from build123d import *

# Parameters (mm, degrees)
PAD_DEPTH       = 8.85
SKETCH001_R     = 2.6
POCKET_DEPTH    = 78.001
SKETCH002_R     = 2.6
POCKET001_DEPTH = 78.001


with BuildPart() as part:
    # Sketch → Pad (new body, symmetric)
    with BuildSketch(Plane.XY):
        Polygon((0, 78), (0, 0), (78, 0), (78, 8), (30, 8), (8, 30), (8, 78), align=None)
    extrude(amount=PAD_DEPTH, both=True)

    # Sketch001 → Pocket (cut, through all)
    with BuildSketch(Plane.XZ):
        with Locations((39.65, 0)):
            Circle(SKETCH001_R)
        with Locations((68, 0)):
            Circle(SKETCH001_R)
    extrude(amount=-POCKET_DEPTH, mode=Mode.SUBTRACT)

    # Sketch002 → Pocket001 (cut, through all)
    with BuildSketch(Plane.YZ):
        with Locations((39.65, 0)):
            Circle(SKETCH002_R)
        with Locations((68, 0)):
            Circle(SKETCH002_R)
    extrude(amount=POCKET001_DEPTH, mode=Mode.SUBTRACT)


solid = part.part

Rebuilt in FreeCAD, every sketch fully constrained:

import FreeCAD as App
import Part
import Sketcher
Q = App.Units.Quantity

doc = App.newDocument("Part")
params = doc.addObject("Spreadsheet::Sheet", "Params")
for row, (alias, value) in enumerate([
    ("sketch1_width", "78 mm"),
    ("sketch1_width2", "48 mm"),
    ("sketch1_width3", "8 mm"),
    ("pad1_length", "17.7 mm"),
    ("sketch2_diameter", "5.2 mm"),
    ("sketch3_diameter", "5.2 mm"),
], start=1):
    params.set(f"A{row}", alias)
    params.set(f"B{row}", "=" + value)
    params.setAlias(f"B{row}", alias)

body = doc.addObject("PartDesign::Body", "Body")

# Sketch on XY plane
sketch1 = doc.addObject("Sketcher::SketchObject", "Sketch")
body.addObject(sketch1)
sketch1.AttachmentSupport = (doc.XY_Plane, [""])
sketch1.MapMode = "FlatFace"
sketch1.addGeometry([
    Part.LineSegment(App.Vector(0, 78, 0), App.Vector(0, 0, 0)),  # 0
    Part.LineSegment(App.Vector(0, 0, 0), App.Vector(78, 0, 0)),  # 1
    Part.LineSegment(App.Vector(78, 0, 0), App.Vector(78, 8, 0)),  # 2
    Part.LineSegment(App.Vector(78, 8, 0), App.Vector(30, 8, 0)),  # 3
    Part.LineSegment(App.Vector(30, 8, 0), App.Vector(8, 30, 0)),  # 4
    Part.LineSegment(App.Vector(8, 30, 0), App.Vector(8, 78, 0)),  # 5
    Part.LineSegment(App.Vector(8, 78, 0), App.Vector(0, 78, 0)),  # 6
], False)
sketch1.addConstraint([
    Sketcher.Constraint("Coincident", 0, 2, 1, 1),
    Sketcher.Constraint("Coincident", 1, 2, 2, 1),
    Sketcher.Constraint("Coincident", 2, 2, 3, 1),
    Sketcher.Constraint("Coincident", 3, 2, 4, 1),
    Sketcher.Constraint("Coincident", 4, 2, 5, 1),
    Sketcher.Constraint("Coincident", 5, 2, 6, 1),
    Sketcher.Constraint("Coincident", 6, 2, 0, 1),
    Sketcher.Constraint("Vertical", 0),
    Sketcher.Constraint("Horizontal", 1),
    Sketcher.Constraint("Vertical", 2),
    Sketcher.Constraint("Horizontal", 3),
    Sketcher.Constraint("Vertical", 5),
    Sketcher.Constraint("Horizontal", 6),
    Sketcher.Constraint("Coincident", 0, 2, -1, 1),
    Sketcher.Constraint("Equal", 1, 0),
    Sketcher.Constraint("Equal", 6, 2),
    Sketcher.Constraint("Equal", 3, 5),
    Sketcher.Constraint("DistanceX", 1, 1, 1, 2, Q("78 mm")),
    Sketcher.Constraint("DistanceX", 3, 2, 3, 1, Q("48 mm")),
    Sketcher.Constraint("DistanceX", 6, 2, 6, 1, Q("8 mm")),
])
sketch1.setExpression("Constraints[17]", "Params.sketch1_width")
sketch1.setExpression("Constraints[18]", "Params.sketch1_width2")
sketch1.setExpression("Constraints[19]", "Params.sketch1_width3")
pad1 = doc.addObject("PartDesign::Pad", "Pad")
body.addObject(pad1)
pad1.Profile = sketch1
pad1.setExpression("Length", "Params.pad1_length")
pad1.Midplane = True

# Sketch on XZ plane
sketch2 = doc.addObject("Sketcher::SketchObject", "Sketch001")
body.addObject(sketch2)
sketch2.AttachmentSupport = (doc.XZ_Plane, [""])
sketch2.MapMode = "FlatFace"
sketch2.addGeometry([
    Part.Circle(App.Vector(39.6, 0, 0), App.Vector(0, 0, 1), 2.6),
    Part.Circle(App.Vector(68, 0, 0), App.Vector(0, 0, 1), 2.6),
], False)
sketch2.addConstraint([
    Sketcher.Constraint("Equal", 0, 1),
    Sketcher.Constraint("PointOnObject", 0, 3, -1),
    Sketcher.Constraint("PointOnObject", 1, 3, -1),
    Sketcher.Constraint("Diameter", 0, Q("5.2 mm")),
    Sketcher.Constraint("DistanceX", -1, 1, 1, 3, Q("68 mm")),
    Sketcher.Constraint("DistanceX", -1, 1, 0, 3, Q("39.65 mm")),
])
sketch2.setExpression("Constraints[3]", "Params.sketch2_diameter")
pocket1 = doc.addObject("PartDesign::Pocket", "Pocket")
body.addObject(pocket1)
pocket1.Profile = sketch2
pocket1.Type = "ThroughAll"

# Sketch on YZ plane
sketch3 = doc.addObject("Sketcher::SketchObject", "Sketch002")
body.addObject(sketch3)
sketch3.AttachmentSupport = (doc.YZ_Plane, [""])
sketch3.MapMode = "FlatFace"
sketch3.addGeometry([
    Part.Circle(App.Vector(39.6, 0, 0), App.Vector(0, 0, 1), 2.6),
    Part.Circle(App.Vector(68, 0, 0), App.Vector(0, 0, 1), 2.6),
], False)
sketch3.addConstraint([
    Sketcher.Constraint("Equal", 0, 1),
    Sketcher.Constraint("PointOnObject", 0, 3, -1),
    Sketcher.Constraint("PointOnObject", 1, 3, -1),
    Sketcher.Constraint("Diameter", 0, Q("5.2 mm")),
    Sketcher.Constraint("DistanceX", -1, 1, 1, 3, Q("68 mm")),
    Sketcher.Constraint("DistanceX", -1, 1, 0, 3, Q("39.65 mm")),
])
sketch3.setExpression("Constraints[3]", "Params.sketch3_diameter")
pocket2 = doc.addObject("PartDesign::Pocket", "Pocket001")
body.addObject(pocket2)
pocket2.Profile = sketch3
pocket2.Type = "ThroughAll"
pocket2.Reversed = True

doc.recompute()
